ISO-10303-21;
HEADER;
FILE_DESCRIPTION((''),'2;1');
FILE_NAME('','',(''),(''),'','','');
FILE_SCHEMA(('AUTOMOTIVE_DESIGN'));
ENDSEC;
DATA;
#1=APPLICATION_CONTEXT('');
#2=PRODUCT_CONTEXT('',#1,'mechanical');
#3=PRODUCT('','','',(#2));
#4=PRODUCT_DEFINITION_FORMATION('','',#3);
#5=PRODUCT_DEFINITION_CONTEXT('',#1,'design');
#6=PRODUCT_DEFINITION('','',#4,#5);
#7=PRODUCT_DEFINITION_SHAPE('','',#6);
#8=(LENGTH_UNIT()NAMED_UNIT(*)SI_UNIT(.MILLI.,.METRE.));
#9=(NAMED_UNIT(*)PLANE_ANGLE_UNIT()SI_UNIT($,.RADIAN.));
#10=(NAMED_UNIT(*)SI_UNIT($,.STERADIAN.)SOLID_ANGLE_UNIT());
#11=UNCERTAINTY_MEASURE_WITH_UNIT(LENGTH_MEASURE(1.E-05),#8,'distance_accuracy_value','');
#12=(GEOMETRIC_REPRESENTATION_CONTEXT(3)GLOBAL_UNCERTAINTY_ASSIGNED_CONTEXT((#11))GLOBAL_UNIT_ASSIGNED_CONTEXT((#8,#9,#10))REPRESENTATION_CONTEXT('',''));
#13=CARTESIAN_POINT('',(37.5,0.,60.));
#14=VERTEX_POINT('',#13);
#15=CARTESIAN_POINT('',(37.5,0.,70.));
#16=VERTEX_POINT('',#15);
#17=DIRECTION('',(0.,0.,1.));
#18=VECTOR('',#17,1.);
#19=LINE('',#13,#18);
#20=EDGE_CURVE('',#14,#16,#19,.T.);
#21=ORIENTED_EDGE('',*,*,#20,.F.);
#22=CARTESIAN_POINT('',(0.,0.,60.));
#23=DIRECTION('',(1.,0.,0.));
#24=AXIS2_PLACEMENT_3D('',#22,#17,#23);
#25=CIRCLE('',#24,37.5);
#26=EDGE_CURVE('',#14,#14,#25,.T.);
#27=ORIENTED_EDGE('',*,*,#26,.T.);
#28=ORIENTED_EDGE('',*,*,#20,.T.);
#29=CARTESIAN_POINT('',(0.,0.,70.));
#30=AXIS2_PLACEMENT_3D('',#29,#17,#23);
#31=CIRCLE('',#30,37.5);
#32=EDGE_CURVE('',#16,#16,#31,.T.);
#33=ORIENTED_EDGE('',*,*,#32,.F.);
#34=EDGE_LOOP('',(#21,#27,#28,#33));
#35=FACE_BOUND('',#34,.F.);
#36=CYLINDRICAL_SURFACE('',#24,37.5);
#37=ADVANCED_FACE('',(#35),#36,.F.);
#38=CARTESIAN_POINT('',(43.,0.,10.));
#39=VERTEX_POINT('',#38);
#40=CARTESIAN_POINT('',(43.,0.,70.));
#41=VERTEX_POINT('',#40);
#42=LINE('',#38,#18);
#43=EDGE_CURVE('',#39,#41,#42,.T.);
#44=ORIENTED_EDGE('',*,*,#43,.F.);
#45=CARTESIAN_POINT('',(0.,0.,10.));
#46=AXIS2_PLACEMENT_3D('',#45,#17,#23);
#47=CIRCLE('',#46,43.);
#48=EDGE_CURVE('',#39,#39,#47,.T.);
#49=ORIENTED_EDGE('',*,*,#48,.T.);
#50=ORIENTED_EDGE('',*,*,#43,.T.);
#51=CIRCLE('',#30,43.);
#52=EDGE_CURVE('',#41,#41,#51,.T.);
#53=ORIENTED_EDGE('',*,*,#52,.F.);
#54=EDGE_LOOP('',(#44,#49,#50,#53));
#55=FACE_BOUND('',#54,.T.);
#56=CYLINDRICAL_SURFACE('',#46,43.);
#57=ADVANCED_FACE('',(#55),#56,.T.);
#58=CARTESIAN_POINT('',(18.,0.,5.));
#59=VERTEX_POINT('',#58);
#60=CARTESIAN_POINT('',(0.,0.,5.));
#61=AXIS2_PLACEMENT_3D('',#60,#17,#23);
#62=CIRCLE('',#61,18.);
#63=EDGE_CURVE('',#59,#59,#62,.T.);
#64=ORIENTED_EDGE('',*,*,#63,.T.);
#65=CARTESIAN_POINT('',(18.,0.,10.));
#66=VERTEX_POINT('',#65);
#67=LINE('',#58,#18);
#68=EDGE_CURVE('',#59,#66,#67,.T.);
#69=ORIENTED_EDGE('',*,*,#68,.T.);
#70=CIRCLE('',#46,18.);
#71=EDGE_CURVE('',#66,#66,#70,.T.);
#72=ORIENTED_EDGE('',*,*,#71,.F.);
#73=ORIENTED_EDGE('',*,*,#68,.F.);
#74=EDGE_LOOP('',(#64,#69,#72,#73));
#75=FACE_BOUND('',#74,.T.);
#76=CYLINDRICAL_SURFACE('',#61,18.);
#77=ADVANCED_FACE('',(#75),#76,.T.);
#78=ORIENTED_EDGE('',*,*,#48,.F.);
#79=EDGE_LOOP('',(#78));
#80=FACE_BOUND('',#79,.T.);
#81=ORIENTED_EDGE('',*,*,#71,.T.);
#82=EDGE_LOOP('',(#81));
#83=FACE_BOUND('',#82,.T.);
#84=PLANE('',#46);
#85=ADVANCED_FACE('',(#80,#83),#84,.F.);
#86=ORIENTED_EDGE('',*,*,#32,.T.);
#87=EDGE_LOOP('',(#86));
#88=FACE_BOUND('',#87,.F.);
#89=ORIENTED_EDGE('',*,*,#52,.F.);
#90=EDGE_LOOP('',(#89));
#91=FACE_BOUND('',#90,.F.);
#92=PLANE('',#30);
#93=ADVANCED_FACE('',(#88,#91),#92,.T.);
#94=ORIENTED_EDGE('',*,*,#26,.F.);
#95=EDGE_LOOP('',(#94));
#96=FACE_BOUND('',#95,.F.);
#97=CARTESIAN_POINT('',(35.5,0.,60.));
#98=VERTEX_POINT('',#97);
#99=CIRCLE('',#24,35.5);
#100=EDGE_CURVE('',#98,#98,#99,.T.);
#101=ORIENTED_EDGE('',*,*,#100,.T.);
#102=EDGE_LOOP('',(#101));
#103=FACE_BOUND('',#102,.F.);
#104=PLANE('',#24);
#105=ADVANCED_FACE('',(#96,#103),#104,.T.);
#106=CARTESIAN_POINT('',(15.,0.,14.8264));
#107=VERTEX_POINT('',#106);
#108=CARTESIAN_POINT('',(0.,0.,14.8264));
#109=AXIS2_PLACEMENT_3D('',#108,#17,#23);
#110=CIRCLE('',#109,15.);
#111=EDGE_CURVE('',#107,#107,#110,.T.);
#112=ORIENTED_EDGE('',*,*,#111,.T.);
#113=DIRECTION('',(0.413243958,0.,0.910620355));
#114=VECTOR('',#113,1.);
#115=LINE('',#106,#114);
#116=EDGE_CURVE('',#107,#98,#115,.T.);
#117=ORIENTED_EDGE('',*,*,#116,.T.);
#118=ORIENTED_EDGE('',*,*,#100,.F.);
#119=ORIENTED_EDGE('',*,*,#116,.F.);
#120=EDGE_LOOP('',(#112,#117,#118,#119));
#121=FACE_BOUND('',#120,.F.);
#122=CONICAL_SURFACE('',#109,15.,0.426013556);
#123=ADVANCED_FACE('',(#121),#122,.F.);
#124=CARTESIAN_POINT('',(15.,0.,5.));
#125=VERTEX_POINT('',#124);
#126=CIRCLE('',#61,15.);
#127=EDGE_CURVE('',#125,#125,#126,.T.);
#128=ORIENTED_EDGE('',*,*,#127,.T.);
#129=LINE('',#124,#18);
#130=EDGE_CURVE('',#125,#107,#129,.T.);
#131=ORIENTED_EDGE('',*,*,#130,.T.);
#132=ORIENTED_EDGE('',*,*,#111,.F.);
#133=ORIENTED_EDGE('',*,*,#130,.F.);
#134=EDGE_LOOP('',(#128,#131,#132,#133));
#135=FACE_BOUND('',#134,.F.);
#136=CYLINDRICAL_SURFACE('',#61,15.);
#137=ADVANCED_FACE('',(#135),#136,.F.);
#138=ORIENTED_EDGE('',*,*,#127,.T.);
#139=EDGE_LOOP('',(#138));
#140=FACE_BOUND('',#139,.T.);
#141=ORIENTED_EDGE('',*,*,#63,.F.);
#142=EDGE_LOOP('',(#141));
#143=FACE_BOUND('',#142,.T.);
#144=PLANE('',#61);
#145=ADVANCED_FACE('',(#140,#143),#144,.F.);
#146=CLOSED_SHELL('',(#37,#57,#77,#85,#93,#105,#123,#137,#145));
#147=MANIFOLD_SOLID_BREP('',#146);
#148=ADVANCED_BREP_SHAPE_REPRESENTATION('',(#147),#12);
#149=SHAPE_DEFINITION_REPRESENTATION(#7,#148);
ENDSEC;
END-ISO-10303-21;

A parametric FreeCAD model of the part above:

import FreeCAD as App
import Part
import Sketcher
from FreeCAD import Vector
Q = App.Units.Quantity

doc = App.newDocument("Part")
body = doc.addObject("PartDesign::Body", "Body")

# Sketch on XZ plane
sketch1 = body.newObject("Sketcher::SketchObject", "Sketch")
sketch1.AttachmentSupport = (doc.getObject("XZ_Plane"), [""])
sketch1.MapMode = "FlatFace"
sketch1.addGeometry([
    Part.LineSegment(Vector(18, 5, 0), Vector(15, 5, 0)),  # 0
    Part.LineSegment(Vector(15, 5, 0), Vector(15, 14.8, 0)),  # 1
    Part.LineSegment(Vector(15, 14.8, 0), Vector(35.5, 60, 0)),  # 2
    Part.LineSegment(Vector(35.5, 60, 0), Vector(37.5, 60, 0)),  # 3
    Part.LineSegment(Vector(37.5, 60, 0), Vector(37.5, 70, 0)),  # 4
    Part.LineSegment(Vector(37.5, 70, 0), Vector(43, 70, 0)),  # 5
    Part.LineSegment(Vector(43, 70, 0), Vector(43, 10, 0)),  # 6
    Part.LineSegment(Vector(43, 10, 0), Vector(18, 10, 0)),  # 7
    Part.LineSegment(Vector(18, 10, 0), Vector(18, 5, 0)),  # 8
], False)
sketch1.addConstraint([
    Sketcher.Constraint("Coincident", 0, 2, 1, 1),
    Sketcher.Constraint("Coincident", 1, 2, 2, 1),
    Sketcher.Constraint("Coincident", 2, 2, 3, 1),
    Sketcher.Constraint("Coincident", 3, 2, 4, 1),
    Sketcher.Constraint("Coincident", 4, 2, 5, 1),
    Sketcher.Constraint("Coincident", 5, 2, 6, 1),
    Sketcher.Constraint("Coincident", 6, 2, 7, 1),
    Sketcher.Constraint("Coincident", 7, 2, 8, 1),
    Sketcher.Constraint("Coincident", 8, 2, 0, 1),
    Sketcher.Constraint("Horizontal", 0),
    Sketcher.Constraint("Vertical", 1),
    Sketcher.Constraint("Horizontal", 3),
    Sketcher.Constraint("Vertical", 4),
    Sketcher.Constraint("Horizontal", 5),
    Sketcher.Constraint("Vertical", 6),
    Sketcher.Constraint("Horizontal", 7),
    Sketcher.Constraint("Vertical", 8),
    Sketcher.Constraint("DistanceX", 0, 2, 0, 1, Q("3 mm")),
    Sketcher.Constraint("DistanceX", 3, 1, 3, 2, Q("2 mm")),
    Sketcher.Constraint("DistanceY", 4, 1, 4, 2, Q("10 mm")),
    Sketcher.Constraint("DistanceY", 6, 2, 6, 1, Q("60 mm")),
    Sketcher.Constraint("DistanceY", 8, 2, 8, 1, Q("5 mm")),
    Sketcher.Constraint("DistanceY", -1, 1, 0, 2, Q("5 mm")),
    Sketcher.Constraint("DistanceX", 7, 2, 7, 1, Q("25 mm")),
    Sketcher.Constraint("DistanceX", 5, 1, 5, 2, Q("5.5 mm")),
    Sketcher.Constraint("DistanceX", -1, 1, 0, 2, Q("15 mm")),
    Sketcher.Constraint("DistanceY", 1, 1, 1, 2, Q("9.8264 mm")),
])
revolution = body.newObject("PartDesign::Revolution", "Revolution")
revolution.Profile = sketch1
revolution.ReferenceAxis = (sketch1, ["V_Axis"])
revolution.Angle = 360

doc.recompute()
